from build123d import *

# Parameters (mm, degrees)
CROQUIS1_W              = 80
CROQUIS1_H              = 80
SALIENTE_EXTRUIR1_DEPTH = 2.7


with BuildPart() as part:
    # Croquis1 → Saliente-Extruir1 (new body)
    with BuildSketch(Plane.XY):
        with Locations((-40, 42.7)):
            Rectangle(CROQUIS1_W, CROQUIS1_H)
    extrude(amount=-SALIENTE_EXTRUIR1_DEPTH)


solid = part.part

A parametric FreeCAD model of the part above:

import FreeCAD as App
import Part
import Sketcher

doc = App.newDocument("Part")
body = doc.addObject("PartDesign::Body", "Body")

# Sketch on XY plane
sketch1 = body.newObject("Sketcher::SketchObject", "Sketch")
sketch1.AttachmentSupport = (doc.getObject("XY_Plane"), [""])
sketch1.MapMode = "FlatFace"
sketch1.addGeometry(Part.LineSegment(App.Vector(-80, 83, 0), App.Vector(-80, 3, 0)), False)
sketch1.addGeometry(Part.LineSegment(App.Vector(-80, 3, 0), App.Vector(0, 3, 0)), False)
sketch1.addGeometry(Part.LineSegment(App.Vector(0, 3, 0), App.Vector(0, 83, 0)), False)
sketch1.addGeometry(Part.LineSegment(App.Vector(0, 83, 0), App.Vector(-80, 83, 0)), False)
sketch1.addConstraint(Sketcher.Constraint("Coincident", 0, 2, 1, 1))
sketch1.addConstraint(Sketcher.Constraint("Coincident", 1, 2, 2, 1))
sketch1.addConstraint(Sketcher.Constraint("Coincident", 2, 2, 3, 1))
sketch1.addConstraint(Sketcher.Constraint("Coincident", 3, 2, 0, 1))
sketch1.addConstraint(Sketcher.Constraint("Vertical", 0))
sketch1.addConstraint(Sketcher.Constraint("Horizontal", 1))
sketch1.addConstraint(Sketcher.Constraint("Vertical", 2))
sketch1.addConstraint(Sketcher.Constraint("Horizontal", 3))
sketch1.addConstraint(Sketcher.Constraint("PointOnObject", 1, 2, -2))
sketch1.addConstraint(Sketcher.Constraint("Equal", 3, 0))
sketch1.addConstraint(Sketcher.Constraint("DistanceX", 1, 1, 1, 2, 80.0))
sketch1.addConstraint(Sketcher.Constraint("DistanceY", -1, 1, 0, 2, 2.7))
pad1 = body.newObject("PartDesign::Pad", "Pad")
pad1.Profile = sketch1
pad1.Length = 2.7
pad1.Reversed = True

doc.recompute()
